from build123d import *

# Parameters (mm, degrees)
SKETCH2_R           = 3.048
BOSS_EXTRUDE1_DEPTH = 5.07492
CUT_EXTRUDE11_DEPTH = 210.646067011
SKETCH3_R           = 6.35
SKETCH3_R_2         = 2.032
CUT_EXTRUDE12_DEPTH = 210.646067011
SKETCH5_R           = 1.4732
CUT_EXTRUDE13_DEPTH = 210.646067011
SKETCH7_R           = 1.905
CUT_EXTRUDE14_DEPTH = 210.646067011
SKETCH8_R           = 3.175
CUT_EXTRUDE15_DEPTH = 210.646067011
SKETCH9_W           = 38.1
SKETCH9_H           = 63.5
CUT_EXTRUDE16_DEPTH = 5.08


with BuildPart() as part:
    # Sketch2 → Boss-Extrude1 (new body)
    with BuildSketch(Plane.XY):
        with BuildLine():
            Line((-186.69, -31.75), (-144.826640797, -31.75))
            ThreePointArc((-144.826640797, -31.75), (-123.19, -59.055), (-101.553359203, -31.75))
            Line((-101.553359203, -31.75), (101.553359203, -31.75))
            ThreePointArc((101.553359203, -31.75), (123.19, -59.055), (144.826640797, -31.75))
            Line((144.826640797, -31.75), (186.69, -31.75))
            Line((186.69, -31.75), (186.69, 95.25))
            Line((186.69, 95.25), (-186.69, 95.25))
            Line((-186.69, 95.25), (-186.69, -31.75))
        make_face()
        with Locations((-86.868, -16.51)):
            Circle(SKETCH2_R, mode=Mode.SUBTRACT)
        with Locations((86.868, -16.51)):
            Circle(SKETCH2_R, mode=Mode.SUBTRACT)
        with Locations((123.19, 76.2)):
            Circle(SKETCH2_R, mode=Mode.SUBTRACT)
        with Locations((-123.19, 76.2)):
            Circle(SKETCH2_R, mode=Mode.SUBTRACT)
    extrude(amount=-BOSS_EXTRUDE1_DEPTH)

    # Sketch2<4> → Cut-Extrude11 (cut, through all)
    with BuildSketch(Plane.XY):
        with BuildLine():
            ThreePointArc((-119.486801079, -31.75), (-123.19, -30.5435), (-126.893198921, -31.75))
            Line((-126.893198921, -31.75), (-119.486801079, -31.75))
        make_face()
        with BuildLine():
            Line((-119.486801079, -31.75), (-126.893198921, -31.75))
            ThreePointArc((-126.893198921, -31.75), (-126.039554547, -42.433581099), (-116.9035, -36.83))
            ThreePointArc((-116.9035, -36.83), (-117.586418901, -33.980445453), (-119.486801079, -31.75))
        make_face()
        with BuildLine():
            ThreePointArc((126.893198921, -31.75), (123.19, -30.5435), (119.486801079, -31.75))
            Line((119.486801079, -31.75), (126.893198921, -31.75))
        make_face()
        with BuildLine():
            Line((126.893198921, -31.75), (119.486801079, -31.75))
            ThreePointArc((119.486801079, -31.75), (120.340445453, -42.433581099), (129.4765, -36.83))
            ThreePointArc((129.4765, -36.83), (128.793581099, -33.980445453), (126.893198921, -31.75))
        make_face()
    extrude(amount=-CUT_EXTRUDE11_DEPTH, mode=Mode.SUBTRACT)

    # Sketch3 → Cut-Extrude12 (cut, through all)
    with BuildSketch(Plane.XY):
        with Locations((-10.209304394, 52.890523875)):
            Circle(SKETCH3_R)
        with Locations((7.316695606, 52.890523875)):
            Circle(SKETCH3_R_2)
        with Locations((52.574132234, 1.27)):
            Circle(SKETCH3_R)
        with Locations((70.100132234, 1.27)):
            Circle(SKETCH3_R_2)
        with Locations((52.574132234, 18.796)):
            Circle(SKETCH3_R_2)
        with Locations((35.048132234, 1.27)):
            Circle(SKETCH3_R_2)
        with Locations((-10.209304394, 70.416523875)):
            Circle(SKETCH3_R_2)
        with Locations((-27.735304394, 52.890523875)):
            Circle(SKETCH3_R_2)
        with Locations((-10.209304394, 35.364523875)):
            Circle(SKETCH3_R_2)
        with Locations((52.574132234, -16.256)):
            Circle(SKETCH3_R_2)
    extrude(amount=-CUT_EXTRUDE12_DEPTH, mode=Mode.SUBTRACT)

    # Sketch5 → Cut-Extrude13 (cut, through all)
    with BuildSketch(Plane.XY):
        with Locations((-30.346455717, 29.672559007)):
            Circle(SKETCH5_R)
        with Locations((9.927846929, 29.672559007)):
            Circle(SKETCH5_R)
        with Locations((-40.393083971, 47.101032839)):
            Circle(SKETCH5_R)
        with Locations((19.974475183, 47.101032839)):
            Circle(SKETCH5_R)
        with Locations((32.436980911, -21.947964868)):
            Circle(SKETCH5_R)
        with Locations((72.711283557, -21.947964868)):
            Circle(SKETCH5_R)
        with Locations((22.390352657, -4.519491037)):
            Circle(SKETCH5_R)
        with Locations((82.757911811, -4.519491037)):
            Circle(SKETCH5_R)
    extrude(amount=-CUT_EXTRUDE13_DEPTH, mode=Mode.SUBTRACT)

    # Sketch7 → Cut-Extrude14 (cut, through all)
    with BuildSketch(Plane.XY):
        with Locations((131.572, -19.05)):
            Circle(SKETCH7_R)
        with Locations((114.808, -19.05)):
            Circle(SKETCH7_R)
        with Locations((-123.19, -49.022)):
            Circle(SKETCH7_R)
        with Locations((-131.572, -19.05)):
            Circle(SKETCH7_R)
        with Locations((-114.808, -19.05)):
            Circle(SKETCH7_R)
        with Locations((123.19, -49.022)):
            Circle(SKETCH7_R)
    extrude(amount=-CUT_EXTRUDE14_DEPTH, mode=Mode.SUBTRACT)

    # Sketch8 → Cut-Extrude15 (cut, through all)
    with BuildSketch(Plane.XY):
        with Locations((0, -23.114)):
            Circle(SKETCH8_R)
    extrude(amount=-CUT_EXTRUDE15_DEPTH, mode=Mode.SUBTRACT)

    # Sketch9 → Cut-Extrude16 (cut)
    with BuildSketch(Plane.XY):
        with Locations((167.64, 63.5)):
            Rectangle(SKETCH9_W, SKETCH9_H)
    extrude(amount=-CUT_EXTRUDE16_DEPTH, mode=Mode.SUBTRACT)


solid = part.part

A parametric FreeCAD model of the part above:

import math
import FreeCAD as App
import Part
import Sketcher

V = App.Vector
Q = App.Units.Quantity


def add_polygon(sketch, points):
    """Adds a closed chain of lines whose ends are joined by coincident constraints."""
    first, n = sketch.GeometryCount, len(points)
    for a, b in zip(points, points[1:] + points[:1]):
        sketch.addGeometry(Part.LineSegment(App.Vector(*a, 0), App.Vector(*b, 0)), False)
    for i in range(n):
        sketch.addConstraint(Sketcher.Constraint("Coincident", first + i, 2, first + (i + 1) % n, 1))

doc = App.newDocument("Part")
body = doc.addObject("PartDesign::Body", "Body")

sketch1 = body.newObject("Sketcher::SketchObject", "Sketch")
sketch1.AttachmentSupport = (doc.getObject("XY_Plane"), [""])
sketch1.MapMode = "FlatFace"
sketch1.addGeometry(Part.LineSegment(V(-186.69, -31.75, 0), V(-144.826641, -31.75, 0)), False)
sketch1.addGeometry(Part.ArcOfCircle(Part.Circle(V(-123.19, -36.83, 0), V(0, 0, 1), 22.225), math.radians(166.78702), math.radians(373.21298)), False)
sketch1.addGeometry(Part.LineSegment(V(-101.553359, -31.75, 0), V(101.553359, -31.75, 0)), False)
sketch1.addGeometry(Part.ArcOfCircle(Part.Circle(V(123.19, -36.83, 0), V(0, 0, 1), 22.225), math.radians(166.78702), math.radians(373.21298)), False)
sketch1.addGeometry(Part.LineSegment(V(144.826641, -31.75, 0), V(186.69, -31.75, 0)), False)
sketch1.addGeometry(Part.LineSegment(V(186.69, -31.75, 0), V(186.69, 95.25, 0)), False)
sketch1.addGeometry(Part.LineSegment(V(186.69, 95.25, 0), V(-186.69, 95.25, 0)), False)
sketch1.addGeometry(Part.LineSegment(V(-186.69, 95.25, 0), V(-186.69, -31.75, 0)), False)
sketch1.addGeometry(Part.Circle(V(-86.868, -16.51, 0), V(0, 0, 1), 3.048), False)
sketch1.addGeometry(Part.Circle(V(86.868, -16.51, 0), V(0, 0, 1), 3.048), False)
sketch1.addGeometry(Part.Circle(V(-123.19, 76.2, 0), V(0, 0, 1), 3.048), False)
sketch1.addGeometry(Part.Circle(V(123.19, 76.2, 0), V(0, 0, 1), 3.048), False)
sketch1.addConstraint(Sketcher.Constraint("Coincident", 0, 2, 1, 1))
sketch1.addConstraint(Sketcher.Constraint("Coincident", 1, 2, 2, 1))
sketch1.addConstraint(Sketcher.Constraint("Coincident", 2, 2, 3, 1))
sketch1.addConstraint(Sketcher.Constraint("Coincident", 3, 2, 4, 1))
sketch1.addConstraint(Sketcher.Constraint("Coincident", 4, 2, 5, 1))
sketch1.addConstraint(Sketcher.Constraint("Coincident", 5, 2, 6, 1))
sketch1.addConstraint(Sketcher.Constraint("Coincident", 6, 2, 7, 1))
sketch1.addConstraint(Sketcher.Constraint("Coincident", 7, 2, 0, 1))
sketch1.addConstraint(Sketcher.Constraint("Horizontal", 0))
sketch1.addConstraint(Sketcher.Constraint("Horizontal", 2))
sketch1.addConstraint(Sketcher.Constraint("Horizontal", 4))
sketch1.addConstraint(Sketcher.Constraint("Vertical", 5))
sketch1.addConstraint(Sketcher.Constraint("Horizontal", 6))
sketch1.addConstraint(Sketcher.Constraint("Vertical", 7))
sketch1.addConstraint(Sketcher.Constraint("Equal", 1, 3))
sketch1.addConstraint(Sketcher.Constraint("Equal", 8, 9))
sketch1.addConstraint(Sketcher.Constraint("Equal", 9, 10))
sketch1.addConstraint(Sketcher.Constraint("Equal", 10, 11))
sketch1.addConstraint(Sketcher.Constraint("Symmetric", 1, 3, 3, 3, -2))
sketch1.addConstraint(Sketcher.Constraint("Symmetric", 8, 3, 9, 3, -2))
sketch1.addConstraint(Sketcher.Constraint("Symmetric", 10, 3, 11, 3, -2))
sketch1.addConstraint(Sketcher.Constraint("Symmetric", 4, 2, 7, 2, -2))
sketch1.addConstraint(Sketcher.Constraint("Horizontal", 0, 2, 1, 2))
sketch1.addConstraint(Sketcher.Constraint("Vertical", 1, 3, 10, 3))
sketch1.addConstraint(Sketcher.Constraint("Diameter", 8, Q("0.24 in")))
sketch1.addConstraint(Sketcher.Constraint("DistanceY", 5, 1, 5, 2, Q("5 in")))
sketch1.addConstraint(Sketcher.Constraint("DistanceX", 6, 2, 6, 1, Q("14.7 in")))
sketch1.addConstraint(Sketcher.Constraint("DistanceY", -1, 1, 10, 3, Q("3 in")))
sketch1.addConstraint(Sketcher.Constraint("Radius", 1, Q("0.875 in")))
sketch1.addConstraint(Sketcher.Constraint("DistanceX", 1, 3, 3, 3, Q("9.7 in")))
sketch1.addConstraint(Sketcher.Constraint("DistanceY", 1, 3, 8, 3, Q("0.8 in")))
sketch1.addConstraint(Sketcher.Constraint("DistanceY", 1, 3, 0, 2, Q("0.2 in")))
sketch1.addConstraint(Sketcher.Constraint("DistanceY", 1, 3, -1, 1, Q("1.45 in")))
sketch1.addConstraint(Sketcher.Constraint("DistanceX", 8, 3, -1, 1, Q("3.42 in")))
pad1 = body.newObject("PartDesign::Pad", "Pad")
pad1.Profile = sketch1
pad1.Length = Q("0.1998 in")
pad1.Reversed = True

sketch2 = body.newObject("Sketcher::SketchObject", "Sketch001")
sketch2.AttachmentSupport = (doc.getObject("XY_Plane"), [""])
sketch2.MapMode = "FlatFace"
sketch2.addGeometry(Part.ArcOfCircle(Part.Circle(V(-123.19, -36.83, 0), V(0, 0, 1), 6.2865), math.radians(53.908843), math.radians(126.091157)), False)
sketch2.addGeometry(Part.ArcOfCircle(Part.Circle(V(-123.19, -36.83, 0), V(0, 0, 1), 6.2865), math.radians(126.091157), math.radians(360)), False)
sketch2.addGeometry(Part.ArcOfCircle(Part.Circle(V(-123.19, -36.83, 0), V(0, 0, 1), 6.2865), math.radians(0), math.radians(53.908843)), False)
sketch2.addGeometry(Part.ArcOfCircle(Part.Circle(V(123.19, -36.83, 0), V(0, 0, 1), 6.2865), math.radians(53.908843), math.radians(126.091157)), False)
sketch2.addGeometry(Part.ArcOfCircle(Part.Circle(V(123.19, -36.83, 0), V(0, 0, 1), 6.2865), math.radians(126.091157), math.radians(360)), False)
sketch2.addGeometry(Part.ArcOfCircle(Part.Circle(V(123.19, -36.83, 0), V(0, 0, 1), 6.2865), math.radians(0), math.radians(53.908843)), False)
sketch2.addConstraint(Sketcher.Constraint("Tangent", 0, 2, 1, 1))
sketch2.addConstraint(Sketcher.Constraint("Tangent", 1, 2, 2, 1))
sketch2.addConstraint(Sketcher.Constraint("Tangent", 2, 2, 0, 1))
sketch2.addConstraint(Sketcher.Constraint("Tangent", 3, 2, 4, 1))
sketch2.addConstraint(Sketcher.Constraint("Tangent", 4, 2, 5, 1))
sketch2.addConstraint(Sketcher.Constraint("Tangent", 5, 2, 3, 1))
sketch2.addConstraint(Sketcher.Constraint("Equal", 2, 3))
sketch2.addConstraint(Sketcher.Constraint("Symmetric", 0, 3, 3, 3, -2))
sketch2.addConstraint(Sketcher.Constraint("Horizontal", 5, 3, 1, 2))
sketch2.addConstraint(Sketcher.Constraint("Horizontal", 0, 2, 2, 2))
sketch2.addConstraint(Sketcher.Constraint("Horizontal", 2, 2, 3, 2))
sketch2.addConstraint(Sketcher.Constraint("Horizontal", 1, 2, 4, 2))
sketch2.addConstraint(Sketcher.Constraint("Horizontal", 3, 2, 5, 2))
sketch2.addConstraint(Sketcher.Constraint("Radius", 0, Q("0.2475 in")))
sketch2.addConstraint(Sketcher.Constraint("DistanceX", 0, 3, 3, 3, Q("9.7 in")))
sketch2.addConstraint(Sketcher.Constraint("DistanceY", 0, 3, 0, 2, Q("0.2 in")))
sketch2.addConstraint(Sketcher.Constraint("DistanceY", 0, 3, -1, 1, Q("1.45 in")))
pocket1 = body.newObject("PartDesign::Pocket", "Pocket")
pocket1.Profile = sketch2
pocket1.Type = "ThroughAll"

sketch3 = body.newObject("Sketcher::SketchObject", "Sketch002")
sketch3.AttachmentSupport = (doc.getObject("XY_Plane"), [""])
sketch3.MapMode = "FlatFace"
sketch3.addGeometry(Part.Circle(V(-10.209304, 52.890524, 0), V(0, 0, 1), 6.35), False)
sketch3.addGeometry(Part.Circle(V(7.316696, 52.890524, 0), V(0, 0, 1), 2.032), False)
sketch3.addGeometry(Part.Circle(V(52.574132, 1.27, 0), V(0, 0, 1), 6.35), False)
sketch3.addGeometry(Part.Circle(V(70.100132, 1.27, 0), V(0, 0, 1), 2.032), False)
sketch3.addGeometry(Part.Circle(V(52.574132, 18.796, 0), V(0, 0, 1), 2.032), False)
sketch3.addGeometry(Part.Circle(V(35.048132, 1.27, 0), V(0, 0, 1), 2.032), False)
sketch3.addGeometry(Part.Circle(V(-10.209304, 70.416524, 0), V(0, 0, 1), 2.032), False)
sketch3.addGeometry(Part.Circle(V(-27.735304, 52.890524, 0), V(0, 0, 1), 2.032), False)
sketch3.addGeometry(Part.Circle(V(-10.209304, 35.364524, 0), V(0, 0, 1), 2.032), False)
sketch3.addGeometry(Part.Circle(V(52.574132, -16.256, 0), V(0, 0, 1), 2.032), False)
sketch3.addConstraint(Sketcher.Constraint("Equal", 0, 2))
sketch3.addConstraint(Sketcher.Constraint("Equal", 1, 3))
sketch3.addConstraint(Sketcher.Constraint("Equal", 3, 4))
sketch3.addConstraint(Sketcher.Constraint("Equal", 4, 5))
sketch3.addConstraint(Sketcher.Constraint("Equal", 5, 6))
sketch3.addConstraint(Sketcher.Constraint("Equal", 6, 7))
sketch3.addConstraint(Sketcher.Constraint("Equal", 7, 8))
sketch3.addConstraint(Sketcher.Constraint("Equal", 8, 9))
sketch3.addConstraint(Sketcher.Constraint("Horizontal", 0, 3, 1, 3))
sketch3.addConstraint(Sketcher.Constraint("Horizontal", 2, 3, 3, 3))
sketch3.addConstraint(Sketcher.Constraint("Horizontal", 3, 3, 5, 3))
sketch3.addConstraint(Sketcher.Constraint("Horizontal", 1, 3, 7, 3))
sketch3.addConstraint(Sketcher.Constraint("Vertical", 2, 3, 4, 3))
sketch3.addConstraint(Sketcher.Constraint("Vertical", 0, 3, 6, 3))
sketch3.addConstraint(Sketcher.Constraint("Vertical", 6, 3, 8, 3))
sketch3.addConstraint(Sketcher.Constraint("Vertical", 4, 3, 9, 3))
sketch3.addConstraint(Sketcher.Constraint("Diameter", 0, Q("0.5 in")))
sketch3.addConstraint(Sketcher.Constraint("Diameter", 1, Q("0.16 in")))
sketch3.addConstraint(Sketcher.Constraint("DistanceY", -1, 1, 2, 3, Q("0.05 in")))
sketch3.addConstraint(Sketcher.Constraint("DistanceY", -1, 1, 4, 3, Q("0.74 in")))
sketch3.addConstraint(Sketcher.Constraint("DistanceY", 9, 3, -1, 1, Q("0.64 in")))
sketch3.addConstraint(Sketcher.Constraint("DistanceX", 0, 3, 1, 3, Q("0.69 in")))
sketch3.addConstraint(Sketcher.Constraint("DistanceX", 2, 3, 3, 3, Q("0.69 in")))
sketch3.addConstraint(Sketcher.Constraint("DistanceX", 5, 3, 2, 3, Q("0.69 in")))
sketch3.addConstraint(Sketcher.Constraint("DistanceY", 0, 3, 6, 3, Q("0.69 in")))
sketch3.addConstraint(Sketcher.Constraint("DistanceX", 7, 3, 0, 3, Q("0.69 in")))
sketch3.addConstraint(Sketcher.Constraint("DistanceY", 8, 3, 0, 3, Q("0.69 in")))
sketch3.addConstraint(Sketcher.Constraint("DistanceX", 0, 3, -1, 1, Q("10.209304 mm")))
sketch3.addConstraint(Sketcher.Constraint("DistanceY", -1, 1, 0, 3, Q("52.890524 mm")))
sketch3.addConstraint(Sketcher.Constraint("DistanceX", -1, 1, 2, 3, Q("52.574132 mm")))
pocket2 = body.newObject("PartDesign::Pocket", "Pocket001")
pocket2.Profile = sketch3
pocket2.Type = "ThroughAll"

sketch4 = body.newObject("Sketcher::SketchObject", "Sketch003")
sketch4.AttachmentSupport = (doc.getObject("XY_Plane"), [""])
sketch4.MapMode = "FlatFace"
sketch4.addGeometry(Part.Circle(V(-30.346456, 29.672559, 0), V(0, 0, 1), 1.4732), False)
sketch4.addGeometry(Part.Circle(V(9.927847, 29.672559, 0), V(0, 0, 1), 1.4732), False)
sketch4.addGeometry(Part.Circle(V(-40.393084, 47.101033, 0), V(0, 0, 1), 1.4732), False)
sketch4.addGeometry(Part.Circle(V(19.974475, 47.101033, 0), V(0, 0, 1), 1.4732), False)
sketch4.addGeometry(Part.Circle(V(32.436981, -21.947965, 0), V(0, 0, 1), 1.4732), False)
sketch4.addGeometry(Part.Circle(V(72.711284, -21.947965, 0), V(0, 0, 1), 1.4732), False)
sketch4.addGeometry(Part.Circle(V(22.390353, -4.519491, 0), V(0, 0, 1), 1.4732), False)
sketch4.addGeometry(Part.Circle(V(82.757912, -4.519491, 0), V(0, 0, 1), 1.4732), False)
sketch4.addConstraint(Sketcher.Constraint("Equal", 0, 1))
sketch4.addConstraint(Sketcher.Constraint("Equal", 1, 2))
sketch4.addConstraint(Sketcher.Constraint("Equal", 2, 3))
sketch4.addConstraint(Sketcher.Constraint("Equal", 3, 4))
sketch4.addConstraint(Sketcher.Constraint("Equal", 4, 5))
sketch4.addConstraint(Sketcher.Constraint("Equal", 5, 6))
sketch4.addConstraint(Sketcher.Constraint("Equal", 6, 7))
sketch4.addConstraint(Sketcher.Constraint("Horizontal", 0, 3, 1, 3))
sketch4.addConstraint(Sketcher.Constraint("Horizontal", 2, 3, 3, 3))
sketch4.addConstraint(Sketcher.Constraint("Horizontal", 4, 3, 5, 3))
sketch4.addConstraint(Sketcher.Constraint("Horizontal", 6, 3, 7, 3))
sketch4.addConstraint(Sketcher.Constraint("Diameter", 0, Q("0.116 in")))
sketch4.addConstraint(Sketcher.Constraint("DistanceY", -1, 1, 0, 3, Q("29.672559 mm")))
sketch4.addConstraint(Sketcher.Constraint("DistanceX", -1, 1, 4, 3, Q("32.436981 mm")))
sketch4.addConstraint(Sketcher.Constraint("DistanceY", 6, 3, -1, 1, Q("4.519491 mm")))
sketch4.addConstraint(Sketcher.Constraint("DistanceX", -1, 1, 7, 3, Q("82.757912 mm")))
sketch4.addConstraint(Sketcher.Constraint("DistanceX", 2, 3, 0, 3, Q("10.046628 mm")))
sketch4.addConstraint(Sketcher.Constraint("DistanceX", 2, 3, 1, 3, Q("50.320931 mm")))
sketch4.addConstraint(Sketcher.Constraint("DistanceX", 1, 3, 3, 3, Q("10.046628 mm")))
sketch4.addConstraint(Sketcher.Constraint("DistanceX", 3, 3, 5, 3, Q("52.736808 mm")))
sketch4.addConstraint(Sketcher.Constraint("DistanceX", 6, 3, 4, 3, Q("10.046628 mm")))
sketch4.addConstraint(Sketcher.Constraint("DistanceX", 6, 3, 5, 3, Q("50.320931 mm")))
sketch4.addConstraint(Sketcher.Constraint("DistanceY", -1, 1, 2, 3, Q("47.101033 mm")))
sketch4.addConstraint(Sketcher.Constraint("DistanceY", 4, 3, -1, 1, Q("21.947965 mm")))
pocket3 = body.newObject("PartDesign::Pocket", "Pocket002")
pocket3.Profile = sketch4
pocket3.Type = "ThroughAll"

sketch5 = body.newObject("Sketcher::SketchObject", "Sketch004")
sketch5.AttachmentSupport = (doc.getObject("XY_Plane"), [""])
sketch5.MapMode = "FlatFace"
sketch5.addGeometry(Part.Circle(V(131.572, -19.05, 0), V(0, 0, 1), 1.905), False)
sketch5.addGeometry(Part.Circle(V(114.808, -19.05, 0), V(0, 0, 1), 1.905), False)
sketch5.addGeometry(Part.Circle(V(-123.19, -49.022, 0), V(0, 0, 1), 1.905), False)
sketch5.addGeometry(Part.Circle(V(-131.572, -19.05, 0), V(0, 0, 1), 1.905), False)
sketch5.addGeometry(Part.Circle(V(-114.808, -19.05, 0), V(0, 0, 1), 1.905), False)
sketch5.addGeometry(Part.Circle(V(123.19, -49.022, 0), V(0, 0, 1), 1.905), False)
sketch5.addConstraint(Sketcher.Constraint("Equal", 0, 1))
sketch5.addConstraint(Sketcher.Constraint("Equal", 1, 2))
sketch5.addConstraint(Sketcher.Constraint("Equal", 2, 3))
sketch5.addConstraint(Sketcher.Constraint("Equal", 3, 4))
sketch5.addConstraint(Sketcher.Constraint("Equal", 4, 5))
sketch5.addConstraint(Sketcher.Constraint("Symmetric", 0, 3, 3, 3, -2))
sketch5.addConstraint(Sketcher.Constraint("Symmetric", 1, 3, 4, 3, -2))
sketch5.addConstraint(Sketcher.Constraint("Symmetric", 2, 3, 5, 3, -2))
sketch5.addConstraint(Sketcher.Constraint("Horizontal", 0, 3, 1, 3))
sketch5.addConstraint(Sketcher.Constraint("Diameter", 0, Q("0.15 in")))
sketch5.addConstraint(Sketcher.Constraint("DistanceX", 3, 3, 1, 3, Q("9.7 in")))
sketch5.addConstraint(Sketcher.Constraint("DistanceX", 2, 3, 5, 3, Q("9.7 in")))
sketch5.addConstraint(Sketcher.Constraint("DistanceX", -1, 1, 0, 3, Q("5.18 in")))
sketch5.addConstraint(Sketcher.Constraint("DistanceY", 0, 3, -1, 1, Q("0.75 in")))
sketch5.addConstraint(Sketcher.Constraint("DistanceY", 2, 3, -1, 1, Q("1.93 in")))
pocket4 = body.newObject("PartDesign::Pocket", "Pocket003")
pocket4.Profile = sketch5
pocket4.Type = "ThroughAll"

sketch6 = body.newObject("Sketcher::SketchObject", "Sketch005")
sketch6.AttachmentSupport = (doc.getObject("XY_Plane"), [""])
sketch6.MapMode = "FlatFace"
sketch6.addGeometry(Part.Circle(V(0, -23.114, 0), V(0, 0, 1), 3.175), False)
sketch6.addConstraint(Sketcher.Constraint("PointOnObject", 0, 3, -2))
sketch6.addConstraint(Sketcher.Constraint("Diameter", 0, Q("0.25 in")))
sketch6.addConstraint(Sketcher.Constraint("DistanceY", 0, 3, -1, 1, Q("0.91 in")))
pocket5 = body.newObject("PartDesign::Pocket", "Pocket004")
pocket5.Profile = sketch6
pocket5.Type = "ThroughAll"

sketch7 = body.newObject("Sketcher::SketchObject", "Sketch006")
sketch7.AttachmentSupport = (doc.getObject("XY_Plane"), [""])
sketch7.MapMode = "FlatFace"
add_polygon(sketch7, [(148.59, 95.25), (148.59, 31.75), (186.69, 31.75), (186.69, 95.25)])
sketch7.addConstraint(Sketcher.Constraint("Vertical", 0))
sketch7.addConstraint(Sketcher.Constraint("Horizontal", 1))
sketch7.addConstraint(Sketcher.Constraint("Vertical", 2))
sketch7.addConstraint(Sketcher.Constraint("Horizontal", 3))
sketch7.addConstraint(Sketcher.Constraint("DistanceX", 1, 1, 1, 2, Q("1.5 in")))
sketch7.addConstraint(Sketcher.Constraint("DistanceY", 0, 2, 0, 1, Q("2.5 in")))
sketch7.addConstraint(Sketcher.Constraint("DistanceX", -1, 1, 0, 2, Q("5.85 in")))
sketch7.addConstraint(Sketcher.Constraint("DistanceY", -1, 1, 0, 2, Q("1.25 in")))
pocket6 = body.newObject("PartDesign::Pocket", "Pocket005")
pocket6.Profile = sketch7
pocket6.Length = Q("0.2 in")

doc.recompute()
